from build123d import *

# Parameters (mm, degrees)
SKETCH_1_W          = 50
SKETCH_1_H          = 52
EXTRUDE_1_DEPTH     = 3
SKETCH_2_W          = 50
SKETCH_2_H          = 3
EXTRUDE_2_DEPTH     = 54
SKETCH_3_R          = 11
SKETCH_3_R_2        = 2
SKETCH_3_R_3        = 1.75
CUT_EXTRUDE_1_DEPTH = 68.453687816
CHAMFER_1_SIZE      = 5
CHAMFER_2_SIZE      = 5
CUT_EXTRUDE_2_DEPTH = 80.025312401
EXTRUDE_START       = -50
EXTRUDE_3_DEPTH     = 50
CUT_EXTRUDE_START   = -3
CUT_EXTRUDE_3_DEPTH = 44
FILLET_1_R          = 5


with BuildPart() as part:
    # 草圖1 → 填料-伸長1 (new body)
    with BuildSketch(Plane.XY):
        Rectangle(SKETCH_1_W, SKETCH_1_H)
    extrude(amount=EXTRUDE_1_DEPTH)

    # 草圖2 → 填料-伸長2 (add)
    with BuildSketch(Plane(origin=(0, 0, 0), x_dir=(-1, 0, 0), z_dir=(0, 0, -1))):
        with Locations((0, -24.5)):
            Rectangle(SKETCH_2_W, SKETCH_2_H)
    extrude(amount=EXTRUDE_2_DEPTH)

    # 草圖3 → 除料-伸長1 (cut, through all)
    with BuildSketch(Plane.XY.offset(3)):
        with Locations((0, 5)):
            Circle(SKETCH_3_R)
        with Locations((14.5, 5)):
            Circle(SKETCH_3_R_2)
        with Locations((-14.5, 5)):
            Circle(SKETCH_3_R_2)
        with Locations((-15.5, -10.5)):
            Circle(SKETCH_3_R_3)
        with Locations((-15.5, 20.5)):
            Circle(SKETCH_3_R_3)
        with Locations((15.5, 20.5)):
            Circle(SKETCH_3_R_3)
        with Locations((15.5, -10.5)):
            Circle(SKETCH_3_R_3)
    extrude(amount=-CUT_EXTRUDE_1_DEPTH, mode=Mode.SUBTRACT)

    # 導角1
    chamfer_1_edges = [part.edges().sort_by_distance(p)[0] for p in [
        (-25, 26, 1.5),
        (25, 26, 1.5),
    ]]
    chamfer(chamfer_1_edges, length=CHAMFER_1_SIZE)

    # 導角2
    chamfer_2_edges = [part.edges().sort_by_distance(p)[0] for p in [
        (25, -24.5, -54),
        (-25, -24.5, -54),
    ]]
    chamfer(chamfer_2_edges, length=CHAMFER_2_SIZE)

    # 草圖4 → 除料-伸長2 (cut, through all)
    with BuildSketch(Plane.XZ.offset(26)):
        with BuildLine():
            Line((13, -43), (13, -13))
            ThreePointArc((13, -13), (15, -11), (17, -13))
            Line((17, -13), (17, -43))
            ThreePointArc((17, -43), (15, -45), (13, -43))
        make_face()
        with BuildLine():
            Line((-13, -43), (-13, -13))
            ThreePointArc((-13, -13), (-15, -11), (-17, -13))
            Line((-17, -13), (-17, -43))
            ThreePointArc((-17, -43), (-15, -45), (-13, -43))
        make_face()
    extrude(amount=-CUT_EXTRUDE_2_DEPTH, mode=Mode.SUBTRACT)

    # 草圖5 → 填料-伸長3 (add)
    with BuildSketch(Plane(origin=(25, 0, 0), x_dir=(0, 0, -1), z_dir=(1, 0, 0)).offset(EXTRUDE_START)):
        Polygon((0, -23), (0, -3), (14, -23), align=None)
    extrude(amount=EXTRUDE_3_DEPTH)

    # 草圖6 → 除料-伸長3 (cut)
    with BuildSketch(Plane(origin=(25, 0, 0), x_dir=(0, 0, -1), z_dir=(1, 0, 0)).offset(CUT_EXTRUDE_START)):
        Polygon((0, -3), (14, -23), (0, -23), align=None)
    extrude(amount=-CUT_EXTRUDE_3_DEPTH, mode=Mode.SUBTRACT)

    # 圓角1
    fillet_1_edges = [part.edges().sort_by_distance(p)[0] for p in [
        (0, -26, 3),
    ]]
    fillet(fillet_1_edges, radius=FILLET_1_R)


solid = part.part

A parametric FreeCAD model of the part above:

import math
import FreeCAD as App
import Part
import Sketcher
from FreeCAD import Vector


def edges_at(feature, points):
    """Names of the edges that pass closest to the given points."""
    edges = feature.Shape.Edges
    near = lambda p: min(range(len(edges)), key=lambda i: edges[i].distToShape(Part.Vertex(*p))[0])
    return sorted({f"Edge{near(p) + 1}" for p in points})

doc = App.newDocument("Part")
body = doc.addObject("PartDesign::Body", "Body")

# Sketch on XY plane
sketch1 = body.newObject("Sketcher::SketchObject", "Sketch")
sketch1.AttachmentSupport = (doc.getObject("XY_Plane"), [""])
sketch1.MapMode = "FlatFace"
sketch1.addGeometry([
    Part.LineSegment(Vector(-25, 26, 0), Vector(-25, -26, 0)),
    Part.LineSegment(Vector(-25, -26, 0), Vector(25, -26, 0)),
    Part.LineSegment(Vector(25, -26, 0), Vector(25, 26, 0)),
    Part.LineSegment(Vector(25, 26, 0), Vector(-25, 26, 0)),
], False)
sketch1.addConstraint([
    Sketcher.Constraint("Coincident", 0, 2, 1, 1),
    Sketcher.Constraint("Coincident", 1, 2, 2, 1),
    Sketcher.Constraint("Coincident", 2, 2, 3, 1),
    Sketcher.Constraint("Coincident", 3, 2, 0, 1),
    Sketcher.Constraint("Vertical", 0),
    Sketcher.Constraint("Horizontal", 1),
    Sketcher.Constraint("Vertical", 2),
    Sketcher.Constraint("Horizontal", 3),
    Sketcher.Constraint("Symmetric", 0, 2, 2, 2, -1, 1),
    Sketcher.Constraint("DistanceX", 1, 1, 1, 2, 50.0),
    Sketcher.Constraint("DistanceY", 0, 2, 0, 1, 52.0),
])
pad1 = body.newObject("PartDesign::Pad", "Pad")
pad1.Profile = sketch1
pad1.Length = 3

# Sketch on XY plane
sketch2 = body.newObject("Sketcher::SketchObject", "Sketch001")
sketch2.AttachmentSupport = (doc.getObject("XY_Plane"), [""])
sketch2.MapMode = "FlatFace"
sketch2.addGeometry([
    Part.LineSegment(Vector(25, -23, 0), Vector(25, -26, 0)),
    Part.LineSegment(Vector(25, -26, 0), Vector(-25, -26, 0)),
    Part.LineSegment(Vector(-25, -26, 0), Vector(-25, -23, 0)),
    Part.LineSegment(Vector(-25, -23, 0), Vector(25, -23, 0)),
], False)
sketch2.addConstraint([
    Sketcher.Constraint("Coincident", 0, 2, 1, 1),
    Sketcher.Constraint("Coincident", 1, 2, 2, 1),
    Sketcher.Constraint("Coincident", 2, 2, 3, 1),
    Sketcher.Constraint("Coincident", 3, 2, 0, 1),
    Sketcher.Constraint("Vertical", 0),
    Sketcher.Constraint("Horizontal", 1),
    Sketcher.Constraint("Vertical", 2),
    Sketcher.Constraint("Horizontal", 3),
    Sketcher.Constraint("DistanceX", 1, 2, 1, 1, 50.0),
    Sketcher.Constraint("DistanceY", 0, 2, 0, 1, 3.0),
    Sketcher.Constraint("DistanceX", -1, 1, 0, 2, 25.0),
    Sketcher.Constraint("DistanceY", 0, 2, -1, 1, 26.0),
])
pad2 = body.newObject("PartDesign::Pad", "Pad001")
pad2.Profile = sketch2
pad2.Length = 54
pad2.Reversed = True

# Sketch on XY plane
sketch3 = body.newObject("Sketcher::SketchObject", "Sketch002")
sketch3.AttachmentSupport = (doc.getObject("XY_Plane"), [""])
sketch3.MapMode = "FlatFace"
sketch3.AttachmentOffset = App.Placement(Vector(0, 0, 3), App.Rotation())
sketch3.addGeometry([
    Part.Circle(Vector(0, 5, 0), Vector(0, 0, 1), 11),  # 0
    Part.Circle(Vector(14.5, 5, 0), Vector(0, 0, 1), 2),  # 1
    Part.Circle(Vector(-14.5, 5, 0), Vector(0, 0, 1), 2),  # 2
    Part.Circle(Vector(-15.5, -10.5, 0), Vector(0, 0, 1), 1.8),  # 3
    Part.Circle(Vector(-15.5, 20.5, 0), Vector(0, 0, 1), 1.8),  # 4
    Part.Circle(Vector(15.5, 20.5, 0), Vector(0, 0, 1), 1.8),  # 5
    Part.Circle(Vector(15.5, -10.5, 0), Vector(0, 0, 1), 1.8),  # 6
], False)
sketch3.addConstraint([
    Sketcher.Constraint("Equal", 1, 2),
    Sketcher.Constraint("Equal", 3, 4),
    Sketcher.Constraint("Equal", 4, 5),
    Sketcher.Constraint("Equal", 5, 6),
    Sketcher.Constraint("Symmetric", 1, 3, 2, 3, -2),
    Sketcher.Constraint("Symmetric", 4, 3, 5, 3, -2),
    Sketcher.Constraint("Symmetric", 3, 3, 6, 3, -2),
    Sketcher.Constraint("PointOnObject", 0, 3, -2),
    Sketcher.Constraint("Horizontal", 0, 3, 1, 3),
    Sketcher.Constraint("Vertical", 3, 3, 4, 3),
    Sketcher.Constraint("Diameter", 0, 22.0),
    Sketcher.Constraint("Diameter", 1, 4.0),
    Sketcher.Constraint("Diameter", 3, 3.5),
    Sketcher.Constraint("DistanceY", -1, 1, 0, 3, 5.0),
    Sketcher.Constraint("DistanceX", 2, 3, 1, 3, 29.0),
    Sketcher.Constraint("DistanceX", 3, 3, 2, 3, 1.0),
    Sketcher.Constraint("DistanceY", 3, 3, 4, 3, 31.0),
    Sketcher.Constraint("DistanceY", 3, 3, -1, 1, 10.5),
])
pocket1 = body.newObject("PartDesign::Pocket", "Pocket")
pocket1.Profile = sketch3
pocket1.Type = "ThroughAll"
doc.recompute()

chamfer = body.newObject("PartDesign::Chamfer", "Chamfer")
chamfer.Base = (pocket1, edges_at(pocket1, [(-25, 26, 1.5), (25, 26, 1.5)]))
chamfer.Size = 5
doc.recompute()

chamfer2 = body.newObject("PartDesign::Chamfer", "Chamfer001")
chamfer2.Base = (chamfer, edges_at(chamfer, [(25, -24.5, -54), (-25, -24.5, -54)]))
chamfer2.Size = 5

# Sketch on XZ plane
sketch4 = body.newObject("Sketcher::SketchObject", "Sketch003")
sketch4.AttachmentSupport = (doc.getObject("XZ_Plane"), [""])
sketch4.MapMode = "FlatFace"
sketch4.AttachmentOffset = App.Placement(Vector(0, 0, 26), App.Rotation())
sketch4.addGeometry([
    Part.LineSegment(Vector(13, -13, 0), Vector(13, -43, 0)),  # 0
    Part.ArcOfCircle(Part.Circle(Vector(15, -43, 0), Vector(0, 0, 1), 2), math.radians(180), math.radians(360)),  # 1
    Part.LineSegment(Vector(17, -43, 0), Vector(17, -13, 0)),  # 2
    Part.ArcOfCircle(Part.Circle(Vector(15, -13, 0), Vector(0, 0, 1), 2), math.radians(0), math.radians(180)),  # 3
    Part.LineSegment(Vector(-13, -43, 0), Vector(-13, -13, 0)),  # 4
    Part.ArcOfCircle(Part.Circle(Vector(-15, -13, 0), Vector(0, 0, 1), 2), math.radians(0), math.radians(180)),  # 5
    Part.LineSegment(Vector(-17, -13, 0), Vector(-17, -43, 0)),  # 6
    Part.ArcOfCircle(Part.Circle(Vector(-15, -43, 0), Vector(0, 0, 1), 2), math.radians(180), math.radians(360)),  # 7
], False)
sketch4.addConstraint([
    Sketcher.Constraint("Tangent", 0, 2, 1, 1),
    Sketcher.Constraint("Tangent", 1, 2, 2, 1),
    Sketcher.Constraint("Tangent", 2, 2, 3, 1),
    Sketcher.Constraint("Tangent", 3, 2, 0, 1),
    Sketcher.Constraint("Tangent", 4, 2, 5, 1),
    Sketcher.Constraint("Tangent", 5, 2, 6, 1),
    Sketcher.Constraint("Tangent", 6, 2, 7, 1),
    Sketcher.Constraint("Tangent", 7, 2, 4, 1),
    Sketcher.Constraint("Vertical", 0),
    Sketcher.Constraint("Vertical", 2),
    Sketcher.Constraint("Vertical", 4),
    Sketcher.Constraint("Vertical", 6),
    Sketcher.Constraint("Equal", 3, 5),
    Sketcher.Constraint("Symmetric", 3, 3, 5, 3, -2),
    Sketcher.Constraint("Horizontal", 1, 3, 7, 3),
    Sketcher.Constraint("Radius", 1, 2.0),
    Sketcher.Constraint("DistanceY", 0, 2, 0, 1, 30.0),
    Sketcher.Constraint("DistanceX", -1, 1, 1, 3, 15.0),
    Sketcher.Constraint("DistanceY", 1, 3, -1, 1, 43.0),
])
pocket2 = body.newObject("PartDesign::Pocket", "Pocket001")
pocket2.Profile = sketch4
pocket2.Type = "ThroughAll"

# Sketch on YZ plane
sketch5 = body.newObject("Sketcher::SketchObject", "Sketch004")
sketch5.AttachmentSupport = (doc.getObject("YZ_Plane"), [""])
sketch5.MapMode = "FlatFace"
sketch5.AttachmentOffset = App.Placement(Vector(0, 0, -25), App.Rotation())
sketch5.addGeometry([
    Part.LineSegment(Vector(-3, 0, 0), Vector(-23, 0, 0)),
    Part.LineSegment(Vector(-23, 0, 0), Vector(-23, -14, 0)),
    Part.LineSegment(Vector(-23, -14, 0), Vector(-3, 0, 0)),
], False)
sketch5.addConstraint([
    Sketcher.Constraint("Coincident", 0, 2, 1, 1),
    Sketcher.Constraint("Coincident", 1, 2, 2, 1),
    Sketcher.Constraint("Coincident", 2, 2, 0, 1),
    Sketcher.Constraint("Horizontal", 0),
    Sketcher.Constraint("Vertical", 1),
    Sketcher.Constraint("PointOnObject", 0, 2, -1),
    Sketcher.Constraint("DistanceX", 0, 2, 0, 1, 20.0),
    Sketcher.Constraint("DistanceY", 1, 2, 1, 1, 14.0),
    Sketcher.Constraint("DistanceX", 0, 2, -1, 1, 23.0),
])
pad3 = body.newObject("PartDesign::Pad", "Pad002")
pad3.Profile = sketch5
pad3.Length = 50

# Sketch on YZ plane
sketch6 = body.newObject("Sketcher::SketchObject", "Sketch005")
sketch6.AttachmentSupport = (doc.getObject("YZ_Plane"), [""])
sketch6.MapMode = "FlatFace"
sketch6.AttachmentOffset = App.Placement(Vector(0, 0, 22), App.Rotation())
sketch6.addGeometry([
    Part.LineSegment(Vector(-23, -14, 0), Vector(-3, 0, 0)),
    Part.LineSegment(Vector(-3, 0, 0), Vector(-23, 0, 0)),
    Part.LineSegment(Vector(-23, 0, 0), Vector(-23, -14, 0)),
], False)
sketch6.addConstraint([
    Sketcher.Constraint("Coincident", 0, 2, 1, 1),
    Sketcher.Constraint("Coincident", 1, 2, 2, 1),
    Sketcher.Constraint("Coincident", 2, 2, 0, 1),
    Sketcher.Constraint("Horizontal", 1),
    Sketcher.Constraint("Vertical", 2),
    Sketcher.Constraint("PointOnObject", 0, 2, -1),
    Sketcher.Constraint("DistanceX", 1, 2, 1, 1, 20.0),
    Sketcher.Constraint("DistanceY", 2, 2, 2, 1, 14.0),
    Sketcher.Constraint("DistanceX", 0, 2, -1, 1, 3.0),
])
pocket3 = body.newObject("PartDesign::Pocket", "Pocket002")
pocket3.Profile = sketch6
pocket3.Length = 44
doc.recompute()

fillet = body.newObject("PartDesign::Fillet", "Fillet")
fillet.Base = (pocket3, edges_at(pocket3, [(0, -26, 3)]))
fillet.Radius = 5

doc.recompute()
